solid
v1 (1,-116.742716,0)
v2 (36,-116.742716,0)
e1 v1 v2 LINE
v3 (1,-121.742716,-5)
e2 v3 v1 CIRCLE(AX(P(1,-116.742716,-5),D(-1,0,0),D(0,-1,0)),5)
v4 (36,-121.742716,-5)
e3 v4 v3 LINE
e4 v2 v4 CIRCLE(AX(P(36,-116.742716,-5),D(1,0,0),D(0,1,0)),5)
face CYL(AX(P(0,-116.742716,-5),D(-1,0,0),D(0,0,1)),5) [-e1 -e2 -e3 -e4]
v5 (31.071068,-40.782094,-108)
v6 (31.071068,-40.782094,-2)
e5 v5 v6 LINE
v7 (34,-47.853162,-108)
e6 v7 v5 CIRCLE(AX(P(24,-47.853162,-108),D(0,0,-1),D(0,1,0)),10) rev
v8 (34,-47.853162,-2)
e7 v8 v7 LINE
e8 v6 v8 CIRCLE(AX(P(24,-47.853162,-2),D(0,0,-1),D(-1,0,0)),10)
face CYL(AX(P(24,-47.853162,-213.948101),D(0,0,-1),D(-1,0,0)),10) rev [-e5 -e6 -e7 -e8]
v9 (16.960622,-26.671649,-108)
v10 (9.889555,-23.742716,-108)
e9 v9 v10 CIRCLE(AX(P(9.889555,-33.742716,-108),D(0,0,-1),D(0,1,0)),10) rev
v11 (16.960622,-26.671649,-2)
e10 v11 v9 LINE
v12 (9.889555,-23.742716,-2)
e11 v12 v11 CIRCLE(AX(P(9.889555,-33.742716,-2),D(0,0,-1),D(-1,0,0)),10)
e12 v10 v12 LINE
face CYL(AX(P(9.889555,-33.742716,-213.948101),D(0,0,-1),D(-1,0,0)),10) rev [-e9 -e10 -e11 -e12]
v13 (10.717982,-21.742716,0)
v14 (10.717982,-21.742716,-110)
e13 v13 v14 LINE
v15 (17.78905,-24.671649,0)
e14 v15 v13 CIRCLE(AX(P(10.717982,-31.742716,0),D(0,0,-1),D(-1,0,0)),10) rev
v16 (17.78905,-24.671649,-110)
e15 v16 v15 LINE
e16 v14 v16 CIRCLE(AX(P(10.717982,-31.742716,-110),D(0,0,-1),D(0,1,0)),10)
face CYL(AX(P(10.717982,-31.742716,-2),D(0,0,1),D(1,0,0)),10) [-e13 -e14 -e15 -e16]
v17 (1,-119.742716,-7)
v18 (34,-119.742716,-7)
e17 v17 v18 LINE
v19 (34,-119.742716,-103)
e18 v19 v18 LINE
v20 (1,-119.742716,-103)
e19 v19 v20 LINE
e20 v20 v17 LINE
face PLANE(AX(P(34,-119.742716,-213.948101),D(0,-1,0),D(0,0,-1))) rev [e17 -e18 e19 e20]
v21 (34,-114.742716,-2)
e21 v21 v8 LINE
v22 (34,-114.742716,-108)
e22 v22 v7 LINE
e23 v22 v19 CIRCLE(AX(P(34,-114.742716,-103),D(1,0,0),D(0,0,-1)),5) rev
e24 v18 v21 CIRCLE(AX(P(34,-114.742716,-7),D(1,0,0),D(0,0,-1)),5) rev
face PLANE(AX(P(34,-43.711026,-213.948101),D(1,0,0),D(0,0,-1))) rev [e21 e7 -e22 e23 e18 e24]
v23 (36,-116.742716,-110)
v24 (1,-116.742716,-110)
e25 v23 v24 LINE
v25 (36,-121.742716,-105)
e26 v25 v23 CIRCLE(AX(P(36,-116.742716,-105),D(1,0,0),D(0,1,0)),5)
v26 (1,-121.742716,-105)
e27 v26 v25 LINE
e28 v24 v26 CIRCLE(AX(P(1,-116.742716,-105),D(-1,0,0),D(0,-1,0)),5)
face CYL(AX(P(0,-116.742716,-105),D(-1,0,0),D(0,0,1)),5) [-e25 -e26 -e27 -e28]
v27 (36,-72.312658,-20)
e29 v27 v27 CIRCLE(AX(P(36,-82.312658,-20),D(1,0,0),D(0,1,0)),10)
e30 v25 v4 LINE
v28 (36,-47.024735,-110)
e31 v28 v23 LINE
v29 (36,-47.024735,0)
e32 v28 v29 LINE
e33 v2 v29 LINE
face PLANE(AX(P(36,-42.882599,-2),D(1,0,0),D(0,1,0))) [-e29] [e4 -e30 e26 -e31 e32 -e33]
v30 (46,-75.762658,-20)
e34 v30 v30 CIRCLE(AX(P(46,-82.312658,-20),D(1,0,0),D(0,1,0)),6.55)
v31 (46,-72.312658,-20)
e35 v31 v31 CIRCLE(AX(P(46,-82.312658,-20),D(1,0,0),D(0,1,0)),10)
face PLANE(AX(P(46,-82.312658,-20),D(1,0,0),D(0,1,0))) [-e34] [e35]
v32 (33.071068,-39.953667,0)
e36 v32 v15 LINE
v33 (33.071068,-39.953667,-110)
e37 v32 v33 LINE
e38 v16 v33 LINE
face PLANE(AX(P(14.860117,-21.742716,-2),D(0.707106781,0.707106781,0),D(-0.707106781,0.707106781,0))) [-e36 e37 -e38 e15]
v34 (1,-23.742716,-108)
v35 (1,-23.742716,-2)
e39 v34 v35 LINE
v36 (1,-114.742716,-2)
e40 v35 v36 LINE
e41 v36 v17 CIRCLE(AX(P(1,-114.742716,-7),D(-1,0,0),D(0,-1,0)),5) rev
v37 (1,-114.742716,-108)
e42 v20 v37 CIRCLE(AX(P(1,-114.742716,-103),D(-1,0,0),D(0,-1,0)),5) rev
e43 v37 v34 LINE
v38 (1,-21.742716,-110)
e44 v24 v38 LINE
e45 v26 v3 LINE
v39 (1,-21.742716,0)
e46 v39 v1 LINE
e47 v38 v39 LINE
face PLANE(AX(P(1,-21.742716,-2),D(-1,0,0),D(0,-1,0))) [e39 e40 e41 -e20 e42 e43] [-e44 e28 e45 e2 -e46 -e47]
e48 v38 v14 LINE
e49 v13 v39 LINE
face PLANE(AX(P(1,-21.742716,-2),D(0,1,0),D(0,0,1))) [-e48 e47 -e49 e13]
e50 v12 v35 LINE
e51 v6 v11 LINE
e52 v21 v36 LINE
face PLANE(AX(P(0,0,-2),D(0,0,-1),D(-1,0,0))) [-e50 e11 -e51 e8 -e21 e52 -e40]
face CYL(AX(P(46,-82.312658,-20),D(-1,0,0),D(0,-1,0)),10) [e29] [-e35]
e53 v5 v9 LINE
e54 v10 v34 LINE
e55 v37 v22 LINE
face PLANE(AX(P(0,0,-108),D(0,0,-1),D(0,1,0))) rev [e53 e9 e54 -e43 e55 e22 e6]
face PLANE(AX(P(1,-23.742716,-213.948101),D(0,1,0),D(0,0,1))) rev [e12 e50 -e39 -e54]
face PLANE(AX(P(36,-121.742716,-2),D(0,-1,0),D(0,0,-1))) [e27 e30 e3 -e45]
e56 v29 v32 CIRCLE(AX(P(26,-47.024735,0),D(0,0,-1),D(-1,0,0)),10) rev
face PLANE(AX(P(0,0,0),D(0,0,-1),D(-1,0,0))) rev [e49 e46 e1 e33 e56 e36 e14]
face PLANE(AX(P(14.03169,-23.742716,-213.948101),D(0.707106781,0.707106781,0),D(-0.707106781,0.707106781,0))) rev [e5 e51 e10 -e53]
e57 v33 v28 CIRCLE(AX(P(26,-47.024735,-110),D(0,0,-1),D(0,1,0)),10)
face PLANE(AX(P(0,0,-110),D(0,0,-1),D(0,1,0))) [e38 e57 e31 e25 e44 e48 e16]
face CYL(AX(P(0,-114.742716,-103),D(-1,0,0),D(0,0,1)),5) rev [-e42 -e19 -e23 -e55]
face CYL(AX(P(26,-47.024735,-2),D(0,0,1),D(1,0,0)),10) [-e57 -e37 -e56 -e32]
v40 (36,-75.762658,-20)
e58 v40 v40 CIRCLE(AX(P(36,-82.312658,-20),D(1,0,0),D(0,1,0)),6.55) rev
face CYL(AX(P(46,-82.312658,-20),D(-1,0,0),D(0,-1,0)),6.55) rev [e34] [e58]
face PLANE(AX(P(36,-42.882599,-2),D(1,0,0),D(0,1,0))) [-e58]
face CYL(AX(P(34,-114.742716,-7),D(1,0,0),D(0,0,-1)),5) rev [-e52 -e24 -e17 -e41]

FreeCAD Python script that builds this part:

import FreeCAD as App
import Part
import Sketcher
Q = App.Units.Quantity


def edges_at(feature, points):
    """Names of the edges that pass closest to the given points."""
    edges = feature.Shape.Edges
    near = lambda p: min(range(len(edges)), key=lambda i: edges[i].distToShape(Part.Vertex(*p))[0])
    return sorted({f"Edge{near(p) + 1}" for p in points})

doc = App.newDocument("Part")
params = doc.addObject("Spreadsheet::Sheet", "Params")
for row, (alias, value) in enumerate([
    ("sketch1_width", "35 mm"),
    ("sketch1_height", "100 mm"),
    ("pad1_length", "2 mm"),
    ("sketch2_width", "35 mm"),
    ("sketch2_height", "100 mm"),
    ("pad2_length", "2 mm"),
    ("sketch3_width", "35 mm"),
    ("sketch3_width2", "33 mm"),
    ("sketch3_height", "2 mm"),
    ("pad3_length", "106 mm"),
    ("sketch4_diameter", "20 mm"),
    ("sketch4_diameter2", "13.1 mm"),
    ("pad4_length", "10 mm"),
    ("fillet_radius", "5 mm"),
    ("fillet2_radius", "10 mm"),
], start=1):
    params.set(f"A{row}", alias)
    params.set(f"B{row}", "=" + value)
    params.setAlias(f"B{row}", alias)

body = doc.addObject("PartDesign::Body", "Body")

# Sketch on XY plane
sketch1 = body.newObject("Sketcher::SketchObject", "Sketch")
sketch1.AttachmentSupport = (doc.getObject("XY_Plane"), [""])
sketch1.MapMode = "FlatFace"
sketch1.addGeometry([
    Part.LineSegment(App.Vector(15, -22, 0), App.Vector(1, -22, 0)),  # 0
    Part.LineSegment(App.Vector(1, -22, 0), App.Vector(1, -122, 0)),  # 1
    Part.LineSegment(App.Vector(1, -122, 0), App.Vector(36, -122, 0)),  # 2
    Part.LineSegment(App.Vector(36, -122, 0), App.Vector(36, -43, 0)),  # 3
    Part.LineSegment(App.Vector(36, -43, 0), App.Vector(15, -22, 0)),  # 4
], False)
sketch1.addConstraint([
    Sketcher.Constraint("Coincident", 0, 2, 1, 1),
    Sketcher.Constraint("Coincident", 1, 2, 2, 1),
    Sketcher.Constraint("Coincident", 2, 2, 3, 1),
    Sketcher.Constraint("Coincident", 3, 2, 4, 1),
    Sketcher.Constraint("Coincident", 4, 2, 0, 1),
    Sketcher.Constraint("Horizontal", 0),
    Sketcher.Constraint("Vertical", 1),
    Sketcher.Constraint("Horizontal", 2),
    Sketcher.Constraint("Vertical", 3),
    Sketcher.Constraint("DistanceX", 2, 1, 2, 2, Q("35 mm")),
    Sketcher.Constraint("DistanceY", 1, 2, 1, 1, Q("100 mm")),
    Sketcher.Constraint("Angle", 4, Q("135 deg")),
    Sketcher.Constraint("DistanceX", -1, 1, 0, 2, Q("1 mm")),
    Sketcher.Constraint("DistanceY", 3, 2, -1, 1, Q("42.882599 mm")),
    Sketcher.Constraint("Distance", 4, Q("29.896309 mm")),
])
sketch1.setExpression("Constraints[9]", "Params.sketch1_width")
sketch1.setExpression("Constraints[10]", "Params.sketch1_height")
pad1 = body.newObject("PartDesign::Pad", "Pad")
pad1.Profile = sketch1
pad1.setExpression("Length", "Params.pad1_length")
pad1.Reversed = True
body2 = doc.addObject("PartDesign::Body", "Body001")

# Sketch on XY plane
sketch2 = body2.newObject("Sketcher::SketchObject", "Sketch001")
sketch2.AttachmentSupport = (doc.getObject("XY_Plane001"), [""])
sketch2.MapMode = "FlatFace"
sketch2.AttachmentOffset = App.Placement(App.Vector(0, 0, -110), App.Rotation())
sketch2.addGeometry([
    Part.LineSegment(App.Vector(1, -122, 0), App.Vector(1, -22, 0)),  # 0
    Part.LineSegment(App.Vector(1, -22, 0), App.Vector(15, -22, 0)),  # 1
    Part.LineSegment(App.Vector(15, -22, 0), App.Vector(36, -43, 0)),  # 2
    Part.LineSegment(App.Vector(36, -43, 0), App.Vector(36, -122, 0)),  # 3
    Part.LineSegment(App.Vector(36, -122, 0), App.Vector(1, -122, 0)),  # 4
], False)
sketch2.addConstraint([
    Sketcher.Constraint("Coincident", 0, 2, 1, 1),
    Sketcher.Constraint("Coincident", 1, 2, 2, 1),
    Sketcher.Constraint("Coincident", 2, 2, 3, 1),
    Sketcher.Constraint("Coincident", 3, 2, 4, 1),
    Sketcher.Constraint("Coincident", 4, 2, 0, 1),
    Sketcher.Constraint("Vertical", 0),
    Sketcher.Constraint("Horizontal", 1),
    Sketcher.Constraint("Vertical", 3),
    Sketcher.Constraint("Horizontal", 4),
    Sketcher.Constraint("DistanceX", 4, 2, 4, 1, Q("35 mm")),
    Sketcher.Constraint("DistanceY", 0, 1, 0, 2, Q("100 mm")),
    Sketcher.Constraint("Angle", 2, Q("-45 deg")),
    Sketcher.Constraint("DistanceX", -1, 1, 0, 2, Q("1 mm")),
    Sketcher.Constraint("DistanceY", 2, 2, -1, 1, Q("42.882599 mm")),
    Sketcher.Constraint("Distance", 2, Q("29.896309 mm")),
])
sketch2.setExpression("Constraints[9]", "Params.sketch2_width")
sketch2.setExpression("Constraints[10]", "Params.sketch2_height")
pad2 = body2.newObject("PartDesign::Pad", "Pad001")
pad2.Profile = sketch2
pad2.setExpression("Length", "Params.pad2_length")
body.AllowCompound = True
doc.recompute()

boolean = body.newObject("PartDesign::Boolean", "Boolean")
boolean.Type = "Fuse"
boolean.addObjects([body2])

# Sketch on XY plane
sketch3 = body.newObject("Sketcher::SketchObject", "Sketch002")
sketch3.AttachmentSupport = (doc.getObject("XY_Plane"), [""])
sketch3.MapMode = "FlatFace"
sketch3.AttachmentOffset = App.Placement(App.Vector(0, 0, -2), App.Rotation())
sketch3.addGeometry([
    Part.LineSegment(App.Vector(14, -23.7, 0), App.Vector(1, -23.7, 0)),  # 0
    Part.LineSegment(App.Vector(1, -23.7, 0), App.Vector(1, -21.7, 0)),  # 1
    Part.LineSegment(App.Vector(1, -21.7, 0), App.Vector(14.9, -21.7, 0)),  # 2
    Part.LineSegment(App.Vector(14.9, -21.7, 0), App.Vector(36, -42.9, 0)),  # 3
    Part.LineSegment(App.Vector(36, -42.9, 0), App.Vector(36, -121.7, 0)),  # 4
    Part.LineSegment(App.Vector(36, -121.7, 0), App.Vector(1, -121.7, 0)),  # 5
    Part.LineSegment(App.Vector(1, -121.7, 0), App.Vector(1, -119.7, 0)),  # 6
    Part.LineSegment(App.Vector(1, -119.7, 0), App.Vector(34, -119.7, 0)),  # 7
    Part.LineSegment(App.Vector(34, -119.7, 0), App.Vector(34, -43.7, 0)),  # 8
    Part.LineSegment(App.Vector(34, -43.7, 0), App.Vector(14, -23.7, 0)),  # 9
], False)
sketch3.addConstraint([
    Sketcher.Constraint("Coincident", 0, 2, 1, 1),
    Sketcher.Constraint("Coincident", 1, 2, 2, 1),
    Sketcher.Constraint("Coincident", 2, 2, 3, 1),
    Sketcher.Constraint("Coincident", 3, 2, 4, 1),
    Sketcher.Constraint("Coincident", 4, 2, 5, 1),
    Sketcher.Constraint("Coincident", 5, 2, 6, 1),
    Sketcher.Constraint("Coincident", 6, 2, 7, 1),
    Sketcher.Constraint("Coincident", 7, 2, 8, 1),
    Sketcher.Constraint("Coincident", 8, 2, 9, 1),
    Sketcher.Constraint("Coincident", 9, 2, 0, 1),
    Sketcher.Constraint("Horizontal", 0),
    Sketcher.Constraint("Vertical", 1),
    Sketcher.Constraint("Horizontal", 2),
    Sketcher.Constraint("Vertical", 4),
    Sketcher.Constraint("Horizontal", 5),
    Sketcher.Constraint("Vertical", 6),
    Sketcher.Constraint("Horizontal", 7),
    Sketcher.Constraint("Vertical", 8),
    Sketcher.Constraint("Parallel", 3, 9),
    Sketcher.Constraint("Vertical", 1, 2, 5, 2),
    Sketcher.Constraint("Equal", 1, 6),
    Sketcher.Constraint("DistanceX", 5, 2, 5, 1, Q("35 mm")),
    Sketcher.Constraint("DistanceX", 7, 1, 7, 2, Q("33 mm")),
    Sketcher.Constraint("DistanceY", 1, 1, 1, 2, Q("2 mm")),
    Sketcher.Constraint("Angle", 3, Q("-45 deg")),
    Sketcher.Constraint("DistanceX", -1, 1, 0, 2, Q("1 mm")),
    Sketcher.Constraint("DistanceY", 4, 2, 2, 2, Q("100 mm")),
    Sketcher.Constraint("DistanceX", 0, 2, 0, 1, Q("13.03169 mm")),
    Sketcher.Constraint("DistanceY", 3, 2, -1, 1, Q("42.882599 mm")),
    Sketcher.Constraint("Distance", 3, Q("29.896309 mm")),
])
sketch3.setExpression("Constraints[21]", "Params.sketch3_width")
sketch3.setExpression("Constraints[22]", "Params.sketch3_width2")
sketch3.setExpression("Constraints[23]", "Params.sketch3_height")
pad3 = body.newObject("PartDesign::Pad", "Pad002")
pad3.Profile = sketch3
pad3.setExpression("Length", "Params.pad3_length")
pad3.Reversed = True

# Sketch on YZ plane
sketch4 = body.newObject("Sketcher::SketchObject", "Sketch003")
sketch4.AttachmentSupport = (doc.getObject("YZ_Plane"), [""])
sketch4.MapMode = "FlatFace"
sketch4.AttachmentOffset = App.Placement(App.Vector(0, 0, 36), App.Rotation())
sketch4.addGeometry([
    Part.Circle(App.Vector(-82, -20, 0), App.Vector(0, 0, 1), 10),
    Part.Circle(App.Vector(-82, -20, 0), App.Vector(0, 0, 1), 7),
], False)
sketch4.addConstraint([
    Sketcher.Constraint("Coincident", 1, 3, 0, 3),
    Sketcher.Constraint("Diameter", 0, Q("20 mm")),
    Sketcher.Constraint("Diameter", 1, Q("13.1 mm")),
    Sketcher.Constraint("DistanceY", 0, 3, -1, 1, Q("20 mm")),
    Sketcher.Constraint("DistanceX", 0, 3, -1, 1, Q("82.312658 mm")),
])
sketch4.setExpression("Constraints[1]", "Params.sketch4_diameter")
sketch4.setExpression("Constraints[2]", "Params.sketch4_diameter2")
pad4 = body.newObject("PartDesign::Pad", "Pad003")
pad4.Profile = sketch4
pad4.setExpression("Length", "Params.pad4_length")
doc.recompute()

fillet = body.newObject("PartDesign::Fillet", "Fillet")
fillet.Base = (pad4, edges_at(pad4, [
    (17.5, -119.743, -2),
    (17.5, -119.743, -108),
    (18.5, -121.743, -110),
    (18.5, -121.743, 0),
]))
fillet.setExpression("Radius", "Params.fillet_radius")
doc.recompute()

fillet2 = body.newObject("PartDesign::Fillet", "Fillet001")
fillet2.Base = (fillet, edges_at(fillet, [
    (34, -43.711, -55),
    (14.032, -23.743, -55),
    (14.86, -21.743, -55),
    (36, -42.883, -55),
]))
fillet2.setExpression("Radius", "Params.fillet2_radius")

doc.recompute()
